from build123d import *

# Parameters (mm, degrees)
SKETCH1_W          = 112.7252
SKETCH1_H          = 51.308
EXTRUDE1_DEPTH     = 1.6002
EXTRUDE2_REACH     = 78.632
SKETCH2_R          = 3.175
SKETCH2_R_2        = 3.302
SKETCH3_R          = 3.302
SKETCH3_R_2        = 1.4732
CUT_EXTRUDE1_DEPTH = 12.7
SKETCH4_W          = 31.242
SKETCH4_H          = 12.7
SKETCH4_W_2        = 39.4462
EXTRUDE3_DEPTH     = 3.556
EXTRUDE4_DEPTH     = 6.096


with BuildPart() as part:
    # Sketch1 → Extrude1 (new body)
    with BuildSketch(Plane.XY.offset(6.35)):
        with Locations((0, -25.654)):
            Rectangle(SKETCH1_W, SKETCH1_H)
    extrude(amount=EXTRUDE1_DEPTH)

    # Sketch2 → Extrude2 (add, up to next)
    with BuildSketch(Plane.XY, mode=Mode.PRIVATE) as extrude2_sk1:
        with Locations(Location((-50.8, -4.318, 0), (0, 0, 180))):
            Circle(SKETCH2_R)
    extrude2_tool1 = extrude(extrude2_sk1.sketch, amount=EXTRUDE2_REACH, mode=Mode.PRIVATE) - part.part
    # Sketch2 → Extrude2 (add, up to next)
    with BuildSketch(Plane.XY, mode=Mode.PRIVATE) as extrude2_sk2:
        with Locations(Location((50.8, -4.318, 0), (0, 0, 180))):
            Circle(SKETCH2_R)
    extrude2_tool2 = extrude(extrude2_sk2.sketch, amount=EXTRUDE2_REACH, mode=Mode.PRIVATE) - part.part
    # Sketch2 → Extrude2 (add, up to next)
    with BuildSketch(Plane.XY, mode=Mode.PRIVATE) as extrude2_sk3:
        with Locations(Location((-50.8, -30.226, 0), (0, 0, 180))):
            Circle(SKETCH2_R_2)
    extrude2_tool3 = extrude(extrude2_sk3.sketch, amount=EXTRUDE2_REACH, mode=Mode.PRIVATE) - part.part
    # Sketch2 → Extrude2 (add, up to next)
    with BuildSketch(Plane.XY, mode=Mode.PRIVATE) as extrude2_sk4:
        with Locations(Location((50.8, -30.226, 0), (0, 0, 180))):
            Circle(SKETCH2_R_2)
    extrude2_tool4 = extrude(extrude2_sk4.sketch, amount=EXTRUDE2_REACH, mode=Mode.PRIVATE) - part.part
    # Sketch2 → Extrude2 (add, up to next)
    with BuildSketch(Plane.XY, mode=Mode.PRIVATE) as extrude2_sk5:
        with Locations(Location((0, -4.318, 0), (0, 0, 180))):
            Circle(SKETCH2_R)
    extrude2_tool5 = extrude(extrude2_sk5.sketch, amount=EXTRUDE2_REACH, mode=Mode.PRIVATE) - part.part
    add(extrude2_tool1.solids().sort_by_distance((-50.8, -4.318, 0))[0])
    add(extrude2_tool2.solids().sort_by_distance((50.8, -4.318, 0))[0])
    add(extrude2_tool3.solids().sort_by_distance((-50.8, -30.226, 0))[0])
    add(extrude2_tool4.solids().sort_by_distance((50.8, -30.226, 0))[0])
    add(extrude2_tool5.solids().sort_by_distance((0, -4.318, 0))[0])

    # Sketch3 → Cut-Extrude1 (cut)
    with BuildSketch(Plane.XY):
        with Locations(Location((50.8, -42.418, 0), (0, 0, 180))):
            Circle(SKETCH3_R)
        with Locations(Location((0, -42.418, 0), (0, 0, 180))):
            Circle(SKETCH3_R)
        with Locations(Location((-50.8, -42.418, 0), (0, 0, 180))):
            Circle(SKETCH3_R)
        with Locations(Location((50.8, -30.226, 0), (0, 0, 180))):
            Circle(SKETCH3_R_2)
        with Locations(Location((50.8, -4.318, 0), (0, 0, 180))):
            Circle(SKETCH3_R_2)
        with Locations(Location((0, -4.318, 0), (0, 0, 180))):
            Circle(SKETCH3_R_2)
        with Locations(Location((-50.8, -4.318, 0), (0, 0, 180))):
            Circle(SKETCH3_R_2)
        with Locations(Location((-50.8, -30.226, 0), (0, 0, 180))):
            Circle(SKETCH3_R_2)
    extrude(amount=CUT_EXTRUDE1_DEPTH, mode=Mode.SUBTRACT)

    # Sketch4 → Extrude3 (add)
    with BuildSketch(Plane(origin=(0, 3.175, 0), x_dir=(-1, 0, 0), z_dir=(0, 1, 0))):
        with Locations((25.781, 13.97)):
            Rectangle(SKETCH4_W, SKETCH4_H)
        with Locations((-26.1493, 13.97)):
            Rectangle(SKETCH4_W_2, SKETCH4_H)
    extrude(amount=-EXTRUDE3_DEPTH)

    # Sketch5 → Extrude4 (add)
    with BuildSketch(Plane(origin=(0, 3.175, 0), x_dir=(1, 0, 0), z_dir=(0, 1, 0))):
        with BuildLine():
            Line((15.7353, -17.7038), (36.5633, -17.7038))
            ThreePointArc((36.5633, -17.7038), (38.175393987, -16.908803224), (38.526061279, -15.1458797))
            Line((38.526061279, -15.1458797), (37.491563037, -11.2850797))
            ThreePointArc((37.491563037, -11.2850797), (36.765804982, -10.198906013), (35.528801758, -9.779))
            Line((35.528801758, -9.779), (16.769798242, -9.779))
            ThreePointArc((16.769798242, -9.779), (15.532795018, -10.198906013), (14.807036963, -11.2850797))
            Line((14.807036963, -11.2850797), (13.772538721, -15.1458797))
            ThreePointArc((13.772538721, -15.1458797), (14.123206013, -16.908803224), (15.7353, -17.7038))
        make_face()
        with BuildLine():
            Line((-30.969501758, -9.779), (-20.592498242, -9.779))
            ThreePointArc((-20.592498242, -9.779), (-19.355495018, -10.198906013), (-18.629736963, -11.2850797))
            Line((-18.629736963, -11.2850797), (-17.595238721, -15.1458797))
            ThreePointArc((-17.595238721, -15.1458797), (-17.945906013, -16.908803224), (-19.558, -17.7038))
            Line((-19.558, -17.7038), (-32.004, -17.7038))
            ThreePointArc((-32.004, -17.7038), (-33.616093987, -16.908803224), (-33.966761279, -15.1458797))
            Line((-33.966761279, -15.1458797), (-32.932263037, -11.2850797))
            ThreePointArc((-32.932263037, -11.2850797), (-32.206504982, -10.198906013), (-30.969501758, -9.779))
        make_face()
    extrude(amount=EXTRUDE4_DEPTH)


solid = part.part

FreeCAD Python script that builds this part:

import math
import FreeCAD as App
import Part
import Sketcher
Q = App.Units.Quantity


def add_polygon(sketch, points):
    """Adds a closed chain of lines whose ends are joined by coincident constraints."""
    first, n = sketch.GeometryCount, len(points)
    for a, b in zip(points, points[1:] + points[:1]):
        sketch.addGeometry(Part.LineSegment(App.Vector(*a, 0), App.Vector(*b, 0)), False)
    for i in range(n):
        sketch.addConstraint(Sketcher.Constraint("Coincident", first + i, 2, first + (i + 1) % n, 1))

doc = App.newDocument("Part")
body = doc.addObject("PartDesign::Body", "Body")

# Sketch on XY plane
sketch1 = doc.addObject("Sketcher::SketchObject", "Sketch")
body.addObject(sketch1)
sketch1.AttachmentSupport = (doc.XY_Plane, [""])
sketch1.MapMode = "FlatFace"
sketch1.AttachmentOffset = App.Placement(App.Vector(0, 0, 0.25 * 25.4), App.Rotation())
add_polygon(sketch1, [(-56.3626, 0), (-56.3626, -51.308), (56.3626, -51.308), (56.3626, 0)])  # lines 0-3
sketch1.addConstraint(Sketcher.Constraint("Vertical", 0))
sketch1.addConstraint(Sketcher.Constraint("Horizontal", 1))
sketch1.addConstraint(Sketcher.Constraint("Vertical", 2))
sketch1.addConstraint(Sketcher.Constraint("Horizontal", 3))
sketch1.addConstraint(Sketcher.Constraint("Symmetric", 2, 2, 3, 2, -1, 1))
sketch1.addConstraint(Sketcher.Constraint("DistanceY", 0, 2, 0, 1, Q("2.02 in")))
sketch1.addConstraint(Sketcher.Constraint("DistanceX", 1, 1, 1, 2, Q("4.438 in")))
pad1 = doc.addObject("PartDesign::Pad", "Pad")
body.addObject(pad1)
pad1.Profile = sketch1
pad1.Length = Q("0.063 in")

# Sketch on XY plane
sketch2 = doc.addObject("Sketcher::SketchObject", "Sketch001")
body.addObject(sketch2)
sketch2.AttachmentSupport = (doc.XY_Plane, [""])
sketch2.MapMode = "FlatFace"
sketch2.addGeometry(Part.Circle(App.Vector(-50.8, -4.318, 0), App.Vector(0, 0, 1), 3.175), False)
sketch2.addConstraint(Sketcher.Constraint("Diameter", 0, Q("0.25 in")))
sketch2.addConstraint(Sketcher.Constraint("DistanceX", 0, 3, -1, 1, Q("2 in")))
sketch2.addConstraint(Sketcher.Constraint("DistanceY", 0, 3, -1, 1, Q("0.17 in")))
pad2 = doc.addObject("PartDesign::Pad", "Pad001")
body.addObject(pad2)
pad2.Profile = sketch2
pad2.Type = "UpToFirst"

# Sketch on XY plane
sketch3 = doc.addObject("Sketcher::SketchObject", "Sketch002")
body.addObject(sketch3)
sketch3.AttachmentSupport = (doc.XY_Plane, [""])
sketch3.MapMode = "FlatFace"
sketch3.addGeometry(Part.Circle(App.Vector(50.8, -4.318, 0), App.Vector(0, 0, 1), 3.175), False)
sketch3.addConstraint(Sketcher.Constraint("Diameter", 0, Q("0.25 in")))
sketch3.addConstraint(Sketcher.Constraint("DistanceX", -1, 1, 0, 3, Q("2 in")))
sketch3.addConstraint(Sketcher.Constraint("DistanceY", 0, 3, -1, 1, Q("0.17 in")))
pad3 = doc.addObject("PartDesign::Pad", "Pad002")
body.addObject(pad3)
pad3.Profile = sketch3
pad3.Type = "UpToFirst"

# Sketch on XY plane
sketch4 = doc.addObject("Sketcher::SketchObject", "Sketch003")
body.addObject(sketch4)
sketch4.AttachmentSupport = (doc.XY_Plane, [""])
sketch4.MapMode = "FlatFace"
sketch4.addGeometry(Part.Circle(App.Vector(-50.8, -30.226, 0), App.Vector(0, 0, 1), 3.302), False)
sketch4.addConstraint(Sketcher.Constraint("Diameter", 0, Q("0.26 in")))
sketch4.addConstraint(Sketcher.Constraint("DistanceX", 0, 3, -1, 1, Q("2 in")))
sketch4.addConstraint(Sketcher.Constraint("DistanceY", 0, 3, -1, 1, Q("1.19 in")))
pad4 = doc.addObject("PartDesign::Pad", "Pad003")
body.addObject(pad4)
pad4.Profile = sketch4
pad4.Type = "UpToFirst"

# Sketch on XY plane
sketch5 = doc.addObject("Sketcher::SketchObject", "Sketch004")
body.addObject(sketch5)
sketch5.AttachmentSupport = (doc.XY_Plane, [""])
sketch5.MapMode = "FlatFace"
sketch5.addGeometry(Part.Circle(App.Vector(50.8, -30.226, 0), App.Vector(0, 0, 1), 3.302), False)
sketch5.addConstraint(Sketcher.Constraint("Diameter", 0, Q("0.26 in")))
sketch5.addConstraint(Sketcher.Constraint("DistanceX", -1, 1, 0, 3, Q("2 in")))
sketch5.addConstraint(Sketcher.Constraint("DistanceY", 0, 3, -1, 1, Q("1.19 in")))
pad5 = doc.addObject("PartDesign::Pad", "Pad004")
body.addObject(pad5)
pad5.Profile = sketch5
pad5.Type = "UpToFirst"

# Sketch on XY plane
sketch6 = doc.addObject("Sketcher::SketchObject", "Sketch005")
body.addObject(sketch6)
sketch6.AttachmentSupport = (doc.XY_Plane, [""])
sketch6.MapMode = "FlatFace"
sketch6.addGeometry(Part.Circle(App.Vector(0, -4.318, 0), App.Vector(0, 0, 1), 3.175), False)
sketch6.addConstraint(Sketcher.Constraint("PointOnObject", 0, 3, -2))
sketch6.addConstraint(Sketcher.Constraint("Diameter", 0, Q("0.25 in")))
sketch6.addConstraint(Sketcher.Constraint("DistanceY", 0, 3, -1, 1, Q("0.17 in")))
pad6 = doc.addObject("PartDesign::Pad", "Pad005")
body.addObject(pad6)
pad6.Profile = sketch6
pad6.Type = "UpToFirst"

# Sketch on XY plane
sketch7 = doc.addObject("Sketcher::SketchObject", "Sketch006")
body.addObject(sketch7)
sketch7.AttachmentSupport = (doc.XY_Plane, [""])
sketch7.MapMode = "FlatFace"
sketch7.addGeometry(Part.Circle(App.Vector(50.8, -42.418, 0), App.Vector(0, 0, 1), 3.302), False)
sketch7.addGeometry(Part.Circle(App.Vector(0, -42.418, 0), App.Vector(0, 0, 1), 3.302), False)
sketch7.addGeometry(Part.Circle(App.Vector(-50.8, -42.418, 0), App.Vector(0, 0, 1), 3.302), False)
sketch7.addGeometry(Part.Circle(App.Vector(50.8, -30.226, 0), App.Vector(0, 0, 1), 1.4732), False)
sketch7.addGeometry(Part.Circle(App.Vector(50.8, -4.318, 0), App.Vector(0, 0, 1), 1.4732), False)
sketch7.addGeometry(Part.Circle(App.Vector(0, -4.318, 0), App.Vector(0, 0, 1), 1.4732), False)
sketch7.addGeometry(Part.Circle(App.Vector(-50.8, -4.318, 0), App.Vector(0, 0, 1), 1.4732), False)
sketch7.addGeometry(Part.Circle(App.Vector(-50.8, -30.226, 0), App.Vector(0, 0, 1), 1.4732), False)
sketch7.addConstraint(Sketcher.Constraint("Equal", 0, 1))
sketch7.addConstraint(Sketcher.Constraint("Equal", 1, 2))
sketch7.addConstraint(Sketcher.Constraint("Equal", 3, 4))
sketch7.addConstraint(Sketcher.Constraint("Equal", 4, 5))
sketch7.addConstraint(Sketcher.Constraint("Equal", 5, 6))
sketch7.addConstraint(Sketcher.Constraint("Equal", 6, 7))
sketch7.addConstraint(Sketcher.Constraint("Symmetric", 0, 3, 2, 3, -2))
sketch7.addConstraint(Sketcher.Constraint("Symmetric", 4, 3, 6, 3, -2))
sketch7.addConstraint(Sketcher.Constraint("Symmetric", 3, 3, 7, 3, -2))
sketch7.addConstraint(Sketcher.Constraint("PointOnObject", 1, 3, -2))
sketch7.addConstraint(Sketcher.Constraint("PointOnObject", 5, 3, -2))
sketch7.addConstraint(Sketcher.Constraint("Horizontal", 0, 3, 1, 3))
sketch7.addConstraint(Sketcher.Constraint("Horizontal", 4, 3, 5, 3))
sketch7.addConstraint(Sketcher.Constraint("Vertical", 0, 3, 3, 3))
sketch7.addConstraint(Sketcher.Constraint("Vertical", 3, 3, 4, 3))
sketch7.addConstraint(Sketcher.Constraint("Diameter", 0, Q("0.26 in")))
sketch7.addConstraint(Sketcher.Constraint("Diameter", 3, Q("0.116 in")))
sketch7.addConstraint(Sketcher.Constraint("DistanceX", -1, 1, 0, 3, Q("2 in")))
sketch7.addConstraint(Sketcher.Constraint("DistanceY", 0, 3, 4, 3, Q("1.5 in")))
sketch7.addConstraint(Sketcher.Constraint("DistanceY", 0, 3, -1, 1, Q("1.67 in")))
sketch7.addConstraint(Sketcher.Constraint("DistanceY", 3, 3, -1, 1, Q("1.19 in")))
pocket1 = doc.addObject("PartDesign::Pocket", "Pocket")
body.addObject(pocket1)
pocket1.Profile = sketch7
pocket1.Length = Q("0.5 in")
pocket1.Reversed = True

# Sketch on XZ plane
sketch8 = doc.addObject("Sketcher::SketchObject", "Sketch007")
body.addObject(sketch8)
sketch8.AttachmentSupport = (doc.XZ_Plane, [""])
sketch8.MapMode = "FlatFace"
sketch8.AttachmentOffset = App.Placement(App.Vector(0, 0, -0.125 * 25.4), App.Rotation())
add_polygon(sketch8, [(-10.16, 20.32), (-10.16, 7.62), (-41.402, 7.62), (-41.402, 20.32)])  # lines 0-3
add_polygon(sketch8, [(45.8724, 20.32), (45.8724, 7.62), (6.4262, 7.62), (6.4262, 20.32)])  # lines 4-7
sketch8.addConstraint(Sketcher.Constraint("Vertical", 0))
sketch8.addConstraint(Sketcher.Constraint("Horizontal", 1))
sketch8.addConstraint(Sketcher.Constraint("Vertical", 2))
sketch8.addConstraint(Sketcher.Constraint("Horizontal", 3))
sketch8.addConstraint(Sketcher.Constraint("Vertical", 4))
sketch8.addConstraint(Sketcher.Constraint("Horizontal", 5))
sketch8.addConstraint(Sketcher.Constraint("Vertical", 6))
sketch8.addConstraint(Sketcher.Constraint("Horizontal", 7))
sketch8.addConstraint(Sketcher.Constraint("Horizontal", 1, 2, 4, 2))
sketch8.addConstraint(Sketcher.Constraint("Horizontal", 3, 2, 6, 2))
sketch8.addConstraint(Sketcher.Constraint("DistanceY", 0, 2, 0, 1, Q("0.5 in")))
sketch8.addConstraint(Sketcher.Constraint("DistanceX", 1, 2, 1, 1, Q("1.23 in")))
sketch8.addConstraint(Sketcher.Constraint("DistanceX", 0, 2, -1, 1, Q("0.4 in")))
sketch8.addConstraint(Sketcher.Constraint("DistanceY", -1, 1, 0, 2, Q("0.3 in")))
sketch8.addConstraint(Sketcher.Constraint("DistanceX", 5, 2, 5, 1, Q("1.553 in")))
sketch8.addConstraint(Sketcher.Constraint("DistanceX", -1, 1, 4, 2, Q("1.806 in")))
pad7 = doc.addObject("PartDesign::Pad", "Pad006")
body.addObject(pad7)
pad7.Profile = sketch8
pad7.Length = Q("0.14 in")

# Sketch on XZ plane
sketch9 = doc.addObject("Sketcher::SketchObject", "Sketch008")
body.addObject(sketch9)
sketch9.AttachmentSupport = (doc.XZ_Plane, [""])
sketch9.MapMode = "FlatFace"
sketch9.AttachmentOffset = App.Placement(App.Vector(0, 0, -0.125 * 25.4), App.Rotation())
sketch9.addGeometry(Part.LineSegment(App.Vector(15.7353, 17.7038, 0), App.Vector(36.5633, 17.7038, 0)), False)
sketch9.addGeometry(Part.ArcOfCircle(Part.Circle(App.Vector(36.5633, 15.6718, 0), App.Vector(0, 0, 1), 2.032), math.radians(-15), math.radians(90)), False)
sketch9.addGeometry(Part.LineSegment(App.Vector(38.526061, 15.14588, 0), App.Vector(37.491563, 11.28508, 0)), False)
sketch9.addGeometry(Part.ArcOfCircle(Part.Circle(App.Vector(35.528802, 11.811, 0), App.Vector(0, 0, 1), 2.032), math.radians(-90), math.radians(-15)), False)
sketch9.addGeometry(Part.LineSegment(App.Vector(35.528802, 9.779, 0), App.Vector(16.769798, 9.779, 0)), False)
sketch9.addGeometry(Part.ArcOfCircle(Part.Circle(App.Vector(16.769798, 11.811, 0), App.Vector(0, 0, 1), 2.032), math.radians(-165), math.radians(-90)), False)
sketch9.addGeometry(Part.LineSegment(App.Vector(14.807037, 11.28508, 0), App.Vector(13.772539, 15.14588, 0)), False)
sketch9.addGeometry(Part.ArcOfCircle(Part.Circle(App.Vector(15.7353, 15.6718, 0), App.Vector(0, 0, 1), 2.032), math.radians(90), math.radians(195)), False)
sketch9.addGeometry(Part.LineSegment(App.Vector(-20.592498, 9.779, 0), App.Vector(-30.969502, 9.779, 0)), False)
sketch9.addGeometry(Part.ArcOfCircle(Part.Circle(App.Vector(-30.969502, 11.811, 0), App.Vector(0, 0, 1), 2.032), math.radians(-165), math.radians(-90)), False)
sketch9.addGeometry(Part.LineSegment(App.Vector(-32.932263, 11.28508, 0), App.Vector(-33.966761, 15.14588, 0)), False)
sketch9.addGeometry(Part.ArcOfCircle(Part.Circle(App.Vector(-32.004, 15.6718, 0), App.Vector(0, 0, 1), 2.032), math.radians(90), math.radians(195)), False)
sketch9.addGeometry(Part.LineSegment(App.Vector(-32.004, 17.7038, 0), App.Vector(-19.558, 17.7038, 0)), False)
sketch9.addGeometry(Part.ArcOfCircle(Part.Circle(App.Vector(-19.558, 15.6718, 0), App.Vector(0, 0, 1), 2.032), math.radians(-15), math.radians(90)), False)
sketch9.addGeometry(Part.LineSegment(App.Vector(-17.595239, 15.14588, 0), App.Vector(-18.629737, 11.28508, 0)), False)
sketch9.addGeometry(Part.ArcOfCircle(Part.Circle(App.Vector(-20.592498, 11.811, 0), App.Vector(0, 0, 1), 2.032), math.radians(-90), math.radians(-15)), False)
sketch9.addConstraint(Sketcher.Constraint("Tangent", 0, 2, 1, 2))
sketch9.addConstraint(Sketcher.Constraint("Tangent", 1, 1, 2, 1))
sketch9.addConstraint(Sketcher.Constraint("Tangent", 2, 2, 3, 2))
sketch9.addConstraint(Sketcher.Constraint("Tangent", 3, 1, 4, 1))
sketch9.addConstraint(Sketcher.Constraint("Tangent", 4, 2, 5, 2))
sketch9.addConstraint(Sketcher.Constraint("Tangent", 5, 1, 6, 1))
sketch9.addConstraint(Sketcher.Constraint("Tangent", 6, 2, 7, 2))
sketch9.addConstraint(Sketcher.Constraint("Tangent", 7, 1, 0, 1))
sketch9.addConstraint(Sketcher.Constraint("Tangent", 8, 2, 9, 2))
sketch9.addConstraint(Sketcher.Constraint("Tangent", 9, 1, 10, 1))
sketch9.addConstraint(Sketcher.Constraint("Tangent", 10, 2, 11, 2))
sketch9.addConstraint(Sketcher.Constraint("Tangent", 11, 1, 12, 1))
sketch9.addConstraint(Sketcher.Constraint("Tangent", 12, 2, 13, 2))
sketch9.addConstraint(Sketcher.Constraint("Tangent", 13, 1, 14, 1))
sketch9.addConstraint(Sketcher.Constraint("Tangent", 14, 2, 15, 2))
sketch9.addConstraint(Sketcher.Constraint("Tangent", 15, 1, 8, 1))
sketch9.addConstraint(Sketcher.Constraint("Horizontal", 0))
sketch9.addConstraint(Sketcher.Constraint("Horizontal", 4))
sketch9.addConstraint(Sketcher.Constraint("Horizontal", 8))
sketch9.addConstraint(Sketcher.Constraint("Horizontal", 12))
sketch9.addConstraint(Sketcher.Constraint("Equal", 1, 3))
sketch9.addConstraint(Sketcher.Constraint("Equal", 3, 5))
sketch9.addConstraint(Sketcher.Constraint("Equal", 5, 7))
sketch9.addConstraint(Sketcher.Constraint("Equal", 7, 9))
sketch9.addConstraint(Sketcher.Constraint("Equal", 9, 11))
sketch9.addConstraint(Sketcher.Constraint("Equal", 11, 13))
sketch9.addConstraint(Sketcher.Constraint("Equal", 13, 15))
sketch9.addConstraint(Sketcher.Constraint("Parallel", 6, 10))
sketch9.addConstraint(Sketcher.Constraint("Parallel", 2, 14))
sketch9.addConstraint(Sketcher.Constraint("Horizontal", 5, 3, 9, 3))
sketch9.addConstraint(Sketcher.Constraint("Horizontal", 7, 3, 11, 3))
sketch9.addConstraint(Sketcher.Constraint("Horizontal", 2, 2, 5, 1))
sketch9.addConstraint(Sketcher.Constraint("Radius", 1, Q("0.08 in")))
sketch9.addConstraint(Sketcher.Constraint("Angle", 2, Q("-105 deg")))
sketch9.addConstraint(Sketcher.Constraint("DistanceX", 0, 1, 0, 2, Q("0.82 in")))
sketch9.addConstraint(Sketcher.Constraint("DistanceX", 12, 1, 12, 2, Q("0.49 in")))
sketch9.addConstraint(Sketcher.Constraint("DistanceX", 11, 3, -1, 1, Q("1.26 in")))
sketch9.addConstraint(Sketcher.Constraint("DistanceY", -1, 1, 1, 3, Q("0.617 in")))
sketch9.addConstraint(Sketcher.Constraint("DistanceY", -1, 1, 3, 3, Q("0.465 in")))
sketch9.addConstraint(Sketcher.Constraint("DistanceX", -1, 1, 1, 3, Q("1.4395 in")))
pad8 = doc.addObject("PartDesign::Pad", "Pad007")
body.addObject(pad8)
pad8.Profile = sketch9
pad8.Length = Q("0.24 in")
pad8.Reversed = True

doc.recompute()
